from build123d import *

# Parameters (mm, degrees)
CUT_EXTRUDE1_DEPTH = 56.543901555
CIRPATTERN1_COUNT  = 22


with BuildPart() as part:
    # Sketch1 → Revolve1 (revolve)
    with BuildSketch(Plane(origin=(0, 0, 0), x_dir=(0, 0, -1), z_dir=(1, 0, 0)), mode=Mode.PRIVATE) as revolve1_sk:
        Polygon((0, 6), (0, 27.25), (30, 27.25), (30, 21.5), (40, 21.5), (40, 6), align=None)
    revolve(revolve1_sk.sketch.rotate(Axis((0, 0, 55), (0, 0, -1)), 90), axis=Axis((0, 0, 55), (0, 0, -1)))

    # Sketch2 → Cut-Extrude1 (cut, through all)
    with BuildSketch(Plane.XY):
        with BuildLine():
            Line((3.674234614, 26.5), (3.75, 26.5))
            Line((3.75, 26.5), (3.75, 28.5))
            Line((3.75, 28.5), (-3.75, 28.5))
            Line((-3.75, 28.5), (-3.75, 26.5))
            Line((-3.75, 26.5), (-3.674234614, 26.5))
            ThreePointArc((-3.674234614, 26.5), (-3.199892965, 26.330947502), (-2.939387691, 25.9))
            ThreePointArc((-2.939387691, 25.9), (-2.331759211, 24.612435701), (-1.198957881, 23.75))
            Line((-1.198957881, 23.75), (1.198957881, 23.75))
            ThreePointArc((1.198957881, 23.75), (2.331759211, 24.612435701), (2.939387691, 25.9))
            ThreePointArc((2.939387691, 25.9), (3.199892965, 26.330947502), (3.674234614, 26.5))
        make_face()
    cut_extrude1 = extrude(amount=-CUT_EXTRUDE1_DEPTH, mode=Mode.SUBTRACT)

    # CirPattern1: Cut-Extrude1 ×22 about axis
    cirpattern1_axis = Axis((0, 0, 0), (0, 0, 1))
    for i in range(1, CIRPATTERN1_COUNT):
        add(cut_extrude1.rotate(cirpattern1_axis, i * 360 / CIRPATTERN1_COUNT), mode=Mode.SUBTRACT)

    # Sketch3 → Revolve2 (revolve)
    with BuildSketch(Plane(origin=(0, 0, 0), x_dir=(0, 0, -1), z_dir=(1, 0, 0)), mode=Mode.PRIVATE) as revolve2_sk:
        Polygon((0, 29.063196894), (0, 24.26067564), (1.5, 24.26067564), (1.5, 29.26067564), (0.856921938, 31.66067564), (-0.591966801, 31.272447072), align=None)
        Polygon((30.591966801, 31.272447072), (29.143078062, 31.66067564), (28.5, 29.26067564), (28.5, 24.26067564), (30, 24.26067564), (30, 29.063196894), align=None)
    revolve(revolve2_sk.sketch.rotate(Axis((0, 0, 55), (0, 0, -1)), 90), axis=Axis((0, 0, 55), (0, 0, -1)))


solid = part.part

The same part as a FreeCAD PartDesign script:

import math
import FreeCAD as App
import Part
import Sketcher
Q = App.Units.Quantity

doc = App.newDocument("Part")
params = doc.addObject("Spreadsheet::Sheet", "Params")
for row, (alias, value) in enumerate([
    ("sketch1_height", "40 mm"),
    ("sketch1_height2", "10 mm"),
    ("sketch1_width", "15.5 mm"),
    ("sketch1_width2", "21.25 mm"),
    ("revolution_angle", "360 deg"),
    ("sketch2_radius", "3 mm"),
    ("sketch2_height", "2 mm"),
    ("sketch2_radius2", "0.75 mm"),
    ("sketch2_width", "7.5 mm"),
    ("sketch3_width", "5 mm"),
    ("sketch3_height", "1.5 mm"),
    ("sketch3_length", "1.5 mm"),
    ("revolution2_angle", "360 deg"),
], start=1):
    params.set(f"A{row}", alias)
    params.set(f"B{row}", "=" + value)
    params.setAlias(f"B{row}", alias)

body = doc.addObject("PartDesign::Body", "Body")

sketch1 = body.newObject("Sketcher::SketchObject", "Sketch")
sketch1.AttachmentSupport = (doc.getObject("YZ_Plane"), [""])
sketch1.MapMode = "FlatFace"
sketch1.addGeometry(Part.LineSegment(App.Vector(27, 0, 0), App.Vector(6, 0, 0)), False)
sketch1.addGeometry(Part.LineSegment(App.Vector(6, 0, 0), App.Vector(6, -40, 0)), False)
sketch1.addGeometry(Part.LineSegment(App.Vector(6, -40, 0), App.Vector(22, -40, 0)), False)
sketch1.addGeometry(Part.LineSegment(App.Vector(22, -40, 0), App.Vector(22, -30, 0)), False)
sketch1.addGeometry(Part.LineSegment(App.Vector(22, -30, 0), App.Vector(27, -30, 0)), False)
sketch1.addGeometry(Part.LineSegment(App.Vector(27, -30, 0), App.Vector(27, 0, 0)), False)
sketch1.addConstraint(Sketcher.Constraint("Coincident", 0, 2, 1, 1))
sketch1.addConstraint(Sketcher.Constraint("Coincident", 1, 2, 2, 1))
sketch1.addConstraint(Sketcher.Constraint("Coincident", 2, 2, 3, 1))
sketch1.addConstraint(Sketcher.Constraint("Coincident", 3, 2, 4, 1))
sketch1.addConstraint(Sketcher.Constraint("Coincident", 4, 2, 5, 1))
sketch1.addConstraint(Sketcher.Constraint("Coincident", 5, 2, 0, 1))
sketch1.addConstraint(Sketcher.Constraint("Horizontal", 0))
sketch1.addConstraint(Sketcher.Constraint("Vertical", 1))
sketch1.addConstraint(Sketcher.Constraint("Horizontal", 2))
sketch1.addConstraint(Sketcher.Constraint("Vertical", 3))
sketch1.addConstraint(Sketcher.Constraint("Horizontal", 4))
sketch1.addConstraint(Sketcher.Constraint("Vertical", 5))
sketch1.addConstraint(Sketcher.Constraint("PointOnObject", 0, 2, -1))
sketch1.addConstraint(Sketcher.Constraint("DistanceY", 1, 2, 1, 1, 40.0))
sketch1.addConstraint(Sketcher.Constraint("DistanceY", 3, 1, 3, 2, 10.0))
sketch1.addConstraint(Sketcher.Constraint("DistanceX", 2, 1, 2, 2, 15.5))
sketch1.addConstraint(Sketcher.Constraint("DistanceX", -1, 1, 0, 2, 6.0))
sketch1.addConstraint(Sketcher.Constraint("DistanceX", 0, 2, 0, 1, 21.25))
sketch1.setExpression("Constraints[13]", "Params.sketch1_height")
sketch1.setExpression("Constraints[14]", "Params.sketch1_height2")
sketch1.setExpression("Constraints[15]", "Params.sketch1_width")
sketch1.setExpression("Constraints[17]", "Params.sketch1_width2")
revolution = body.newObject("PartDesign::Revolution", "Revolution")
revolution.Profile = sketch1
revolution.ReferenceAxis = (sketch1, ["V_Axis"])
revolution.setExpression("Angle", "Params.revolution_angle")

sketch2 = body.newObject("Sketcher::SketchObject", "Sketch001")
sketch2.AttachmentSupport = (doc.getObject("XY_Plane"), [""])
sketch2.MapMode = "FlatFace"
sketch2.addGeometry(Part.LineSegment(App.Vector(3.67, 26.5, 0), App.Vector(3.75, 26.5, 0)), False)
sketch2.addGeometry(Part.LineSegment(App.Vector(3.75, 26.5, 0), App.Vector(3.75, 28.5, 0)), False)
sketch2.addGeometry(Part.LineSegment(App.Vector(3.75, 28.5, 0), App.Vector(-3.75, 28.5, 0)), False)
sketch2.addGeometry(Part.LineSegment(App.Vector(-3.75, 28.5, 0), App.Vector(-3.75, 26.5, 0)), False)
sketch2.addGeometry(Part.LineSegment(App.Vector(-3.75, 26.5, 0), App.Vector(-3.67, 26.5, 0)), False)
sketch2.addGeometry(Part.ArcOfCircle(Part.Circle(App.Vector(-3.67, 25.75, 0), App.Vector(0, 0, 1), 0.75), math.radians(12), math.radians(90)), False)
sketch2.addGeometry(Part.ArcOfCircle(Part.Circle(App.Vector(0, 26.5, 0), App.Vector(0, 0, 1), 3), math.radians(-168), math.radians(-114)), False)
sketch2.addGeometry(Part.LineSegment(App.Vector(-1.2, 23.75, 0), App.Vector(1.2, 23.75, 0)), False)
sketch2.addGeometry(Part.ArcOfCircle(Part.Circle(App.Vector(0, 26.5, 0), App.Vector(0, 0, 1), 3), math.radians(-66), math.radians(-12)), False)
sketch2.addGeometry(Part.ArcOfCircle(Part.Circle(App.Vector(3.67, 25.75, 0), App.Vector(0, 0, 1), 0.75), math.radians(90), math.radians(168)), False)
sketch2.addConstraint(Sketcher.Constraint("Coincident", 0, 2, 1, 1))
sketch2.addConstraint(Sketcher.Constraint("Coincident", 1, 2, 2, 1))
sketch2.addConstraint(Sketcher.Constraint("Coincident", 2, 2, 3, 1))
sketch2.addConstraint(Sketcher.Constraint("Coincident", 3, 2, 4, 1))
sketch2.addConstraint(Sketcher.Constraint("Tangent", 4, 2, 5, 2))
sketch2.addConstraint(Sketcher.Constraint("Tangent", 5, 1, 6, 1))
sketch2.addConstraint(Sketcher.Constraint("Coincident", 6, 2, 7, 1))
sketch2.addConstraint(Sketcher.Constraint("Coincident", 7, 2, 8, 1))
sketch2.addConstraint(Sketcher.Constraint("Tangent", 8, 2, 9, 2))
sketch2.addConstraint(Sketcher.Constraint("Tangent", 9, 1, 0, 1))
sketch2.addConstraint(Sketcher.Constraint("Horizontal", 0))
sketch2.addConstraint(Sketcher.Constraint("Vertical", 1))
sketch2.addConstraint(Sketcher.Constraint("Horizontal", 2))
sketch2.addConstraint(Sketcher.Constraint("Vertical", 3))
sketch2.addConstraint(Sketcher.Constraint("Horizontal", 4))
sketch2.addConstraint(Sketcher.Constraint("Horizontal", 7))
sketch2.addConstraint(Sketcher.Constraint("Coincident", 8, 3, 6, 3))
sketch2.addConstraint(Sketcher.Constraint("Equal", 6, 8))
sketch2.addConstraint(Sketcher.Constraint("Equal", 5, 9))
sketch2.addConstraint(Sketcher.Constraint("Symmetric", 5, 3, 9, 3, -2))
sketch2.addConstraint(Sketcher.Constraint("Horizontal", 8, 3, 0, 2))
sketch2.addConstraint(Sketcher.Constraint("Equal", 0, 4))
sketch2.addConstraint(Sketcher.Constraint("Radius", 6, 3.0))
sketch2.addConstraint(Sketcher.Constraint("DistanceY", 1, 1, 1, 2, 2.0))
sketch2.addConstraint(Sketcher.Constraint("Radius", 5, 0.75))
sketch2.addConstraint(Sketcher.Constraint("DistanceX", 2, 2, 2, 1, 7.5))
sketch2.addConstraint(Sketcher.Constraint("DistanceY", 6, 2, 5, 3, 2.0))
sketch2.addConstraint(Sketcher.Constraint("DistanceY", -1, 1, 6, 3, 26.5))
sketch2.setExpression("Constraints[22]", "Params.sketch2_radius")
sketch2.setExpression("Constraints[23]", "Params.sketch2_height")
sketch2.setExpression("Constraints[24]", "Params.sketch2_radius2")
sketch2.setExpression("Constraints[25]", "Params.sketch2_width")
pocket1 = body.newObject("PartDesign::Pocket", "Pocket")
pocket1.Profile = sketch2
pocket1.Type = "ThroughAll"
doc.recompute()

polarpattern = body.newObject("PartDesign::PolarPattern", "PolarPattern")
polarpattern.Originals = [pocket1]
polarpattern.Axis = (doc.getObject("Z_Axis"), [""])
polarpattern.Angle = 360
polarpattern.Occurrences = 22
body.Tip = polarpattern

sketch3 = body.newObject("Sketcher::SketchObject", "Sketch002")
sketch3.AttachmentSupport = (doc.getObject("YZ_Plane"), [""])
sketch3.MapMode = "FlatFace"
sketch3.addGeometry(Part.LineSegment(App.Vector(29.1, 0, 0), App.Vector(24.3, 0, 0)), False)
sketch3.addGeometry(Part.LineSegment(App.Vector(24.3, 0, 0), App.Vector(24.3, -1.5, 0)), False)
sketch3.addGeometry(Part.LineSegment(App.Vector(24.3, -1.5, 0), App.Vector(29.3, -1.5, 0)), False)
sketch3.addGeometry(Part.LineSegment(App.Vector(29.3, -1.5, 0), App.Vector(31.7, -0.9, 0)), False)
sketch3.addGeometry(Part.LineSegment(App.Vector(31.7, -0.9, 0), App.Vector(31.3, 0.6, 0)), False)
sketch3.addGeometry(Part.LineSegment(App.Vector(31.3, 0.6, 0), App.Vector(29.1, 0, 0)), False)
sketch3.addGeometry(Part.LineSegment(App.Vector(31.3, -30.6, 0), App.Vector(31.7, -29.1, 0)), False)
sketch3.addGeometry(Part.LineSegment(App.Vector(31.7, -29.1, 0), App.Vector(29.3, -28.5, 0)), False)
sketch3.addGeometry(Part.LineSegment(App.Vector(29.3, -28.5, 0), App.Vector(24.3, -28.5, 0)), False)
sketch3.addGeometry(Part.LineSegment(App.Vector(24.3, -28.5, 0), App.Vector(24.3, -30, 0)), False)
sketch3.addGeometry(Part.LineSegment(App.Vector(24.3, -30, 0), App.Vector(29.1, -30, 0)), False)
sketch3.addGeometry(Part.LineSegment(App.Vector(29.1, -30, 0), App.Vector(31.3, -30.6, 0)), False)
sketch3.addConstraint(Sketcher.Constraint("Coincident", 0, 2, 1, 1))
sketch3.addConstraint(Sketcher.Constraint("Coincident", 1, 2, 2, 1))
sketch3.addConstraint(Sketcher.Constraint("Coincident", 2, 2, 3, 1))
sketch3.addConstraint(Sketcher.Constraint("Coincident", 3, 2, 4, 1))
sketch3.addConstraint(Sketcher.Constraint("Coincident", 4, 2, 5, 1))
sketch3.addConstraint(Sketcher.Constraint("Coincident", 5, 2, 0, 1))
sketch3.addConstraint(Sketcher.Constraint("Coincident", 6, 2, 7, 1))
sketch3.addConstraint(Sketcher.Constraint("Coincident", 7, 2, 8, 1))
sketch3.addConstraint(Sketcher.Constraint("Coincident", 8, 2, 9, 1))
sketch3.addConstraint(Sketcher.Constraint("Coincident", 9, 2, 10, 1))
sketch3.addConstraint(Sketcher.Constraint("Coincident", 10, 2, 11, 1))
sketch3.addConstraint(Sketcher.Constraint("Coincident", 11, 2, 6, 1))
sketch3.addConstraint(Sketcher.Constraint("Horizontal", 0))
sketch3.addConstraint(Sketcher.Constraint("Vertical", 1))
sketch3.addConstraint(Sketcher.Constraint("Horizontal", 2))
sketch3.addConstraint(Sketcher.Constraint("Horizontal", 8))
sketch3.addConstraint(Sketcher.Constraint("Vertical", 9))
sketch3.addConstraint(Sketcher.Constraint("Horizontal", 10))
sketch3.addConstraint(Sketcher.Constraint("PointOnObject", 0, 2, -1))
sketch3.addConstraint(Sketcher.Constraint("Perpendicular", 3, 4))
sketch3.addConstraint(Sketcher.Constraint("Perpendicular", 4, 5))
sketch3.addConstraint(Sketcher.Constraint("Perpendicular", 6, 7))
sketch3.addConstraint(Sketcher.Constraint("Parallel", 7, 11))
sketch3.addConstraint(Sketcher.Constraint("Vertical", 3, 2, 6, 2))
sketch3.addConstraint(Sketcher.Constraint("Vertical", 2, 2, 7, 2))
sketch3.addConstraint(Sketcher.Constraint("Vertical", 1, 2, 8, 2))
sketch3.addConstraint(Sketcher.Constraint("Vertical", 5, 2, 10, 2))
sketch3.addConstraint(Sketcher.Constraint("Vertical", 4, 2, 11, 2))
sketch3.addConstraint(Sketcher.Constraint("Equal", 1, 9))
sketch3.addConstraint(Sketcher.Constraint("DistanceX", 2, 1, 2, 2, 5.0))
sketch3.addConstraint(Sketcher.Constraint("Angle", 3, Q("15 deg")))
sketch3.addConstraint(Sketcher.Constraint("DistanceY", 1, 2, 1, 1, 1.5))
sketch3.addConstraint(Sketcher.Constraint("DistanceY", 9, 2, -1, 1, 30.0))
sketch3.addConstraint(Sketcher.Constraint("Distance", 4, 1.5))
sketch3.addConstraint(Sketcher.Constraint("DistanceX", 2, 2, 3, 2, 2.4))
sketch3.addConstraint(Sketcher.Constraint("DistanceX", -1, 1, 0, 2, 24.260676))
sketch3.setExpression("Constraints[29]", "Params.sketch3_width")
sketch3.setExpression("Constraints[31]", "Params.sketch3_height")
sketch3.setExpression("Constraints[33]", "Params.sketch3_length")
revolution2 = body.newObject("PartDesign::Revolution", "Revolution001")
revolution2.Profile = sketch3
revolution2.ReferenceAxis = (sketch3, ["V_Axis"])
revolution2.setExpression("Angle", "Params.revolution2_angle")

doc.recompute()
